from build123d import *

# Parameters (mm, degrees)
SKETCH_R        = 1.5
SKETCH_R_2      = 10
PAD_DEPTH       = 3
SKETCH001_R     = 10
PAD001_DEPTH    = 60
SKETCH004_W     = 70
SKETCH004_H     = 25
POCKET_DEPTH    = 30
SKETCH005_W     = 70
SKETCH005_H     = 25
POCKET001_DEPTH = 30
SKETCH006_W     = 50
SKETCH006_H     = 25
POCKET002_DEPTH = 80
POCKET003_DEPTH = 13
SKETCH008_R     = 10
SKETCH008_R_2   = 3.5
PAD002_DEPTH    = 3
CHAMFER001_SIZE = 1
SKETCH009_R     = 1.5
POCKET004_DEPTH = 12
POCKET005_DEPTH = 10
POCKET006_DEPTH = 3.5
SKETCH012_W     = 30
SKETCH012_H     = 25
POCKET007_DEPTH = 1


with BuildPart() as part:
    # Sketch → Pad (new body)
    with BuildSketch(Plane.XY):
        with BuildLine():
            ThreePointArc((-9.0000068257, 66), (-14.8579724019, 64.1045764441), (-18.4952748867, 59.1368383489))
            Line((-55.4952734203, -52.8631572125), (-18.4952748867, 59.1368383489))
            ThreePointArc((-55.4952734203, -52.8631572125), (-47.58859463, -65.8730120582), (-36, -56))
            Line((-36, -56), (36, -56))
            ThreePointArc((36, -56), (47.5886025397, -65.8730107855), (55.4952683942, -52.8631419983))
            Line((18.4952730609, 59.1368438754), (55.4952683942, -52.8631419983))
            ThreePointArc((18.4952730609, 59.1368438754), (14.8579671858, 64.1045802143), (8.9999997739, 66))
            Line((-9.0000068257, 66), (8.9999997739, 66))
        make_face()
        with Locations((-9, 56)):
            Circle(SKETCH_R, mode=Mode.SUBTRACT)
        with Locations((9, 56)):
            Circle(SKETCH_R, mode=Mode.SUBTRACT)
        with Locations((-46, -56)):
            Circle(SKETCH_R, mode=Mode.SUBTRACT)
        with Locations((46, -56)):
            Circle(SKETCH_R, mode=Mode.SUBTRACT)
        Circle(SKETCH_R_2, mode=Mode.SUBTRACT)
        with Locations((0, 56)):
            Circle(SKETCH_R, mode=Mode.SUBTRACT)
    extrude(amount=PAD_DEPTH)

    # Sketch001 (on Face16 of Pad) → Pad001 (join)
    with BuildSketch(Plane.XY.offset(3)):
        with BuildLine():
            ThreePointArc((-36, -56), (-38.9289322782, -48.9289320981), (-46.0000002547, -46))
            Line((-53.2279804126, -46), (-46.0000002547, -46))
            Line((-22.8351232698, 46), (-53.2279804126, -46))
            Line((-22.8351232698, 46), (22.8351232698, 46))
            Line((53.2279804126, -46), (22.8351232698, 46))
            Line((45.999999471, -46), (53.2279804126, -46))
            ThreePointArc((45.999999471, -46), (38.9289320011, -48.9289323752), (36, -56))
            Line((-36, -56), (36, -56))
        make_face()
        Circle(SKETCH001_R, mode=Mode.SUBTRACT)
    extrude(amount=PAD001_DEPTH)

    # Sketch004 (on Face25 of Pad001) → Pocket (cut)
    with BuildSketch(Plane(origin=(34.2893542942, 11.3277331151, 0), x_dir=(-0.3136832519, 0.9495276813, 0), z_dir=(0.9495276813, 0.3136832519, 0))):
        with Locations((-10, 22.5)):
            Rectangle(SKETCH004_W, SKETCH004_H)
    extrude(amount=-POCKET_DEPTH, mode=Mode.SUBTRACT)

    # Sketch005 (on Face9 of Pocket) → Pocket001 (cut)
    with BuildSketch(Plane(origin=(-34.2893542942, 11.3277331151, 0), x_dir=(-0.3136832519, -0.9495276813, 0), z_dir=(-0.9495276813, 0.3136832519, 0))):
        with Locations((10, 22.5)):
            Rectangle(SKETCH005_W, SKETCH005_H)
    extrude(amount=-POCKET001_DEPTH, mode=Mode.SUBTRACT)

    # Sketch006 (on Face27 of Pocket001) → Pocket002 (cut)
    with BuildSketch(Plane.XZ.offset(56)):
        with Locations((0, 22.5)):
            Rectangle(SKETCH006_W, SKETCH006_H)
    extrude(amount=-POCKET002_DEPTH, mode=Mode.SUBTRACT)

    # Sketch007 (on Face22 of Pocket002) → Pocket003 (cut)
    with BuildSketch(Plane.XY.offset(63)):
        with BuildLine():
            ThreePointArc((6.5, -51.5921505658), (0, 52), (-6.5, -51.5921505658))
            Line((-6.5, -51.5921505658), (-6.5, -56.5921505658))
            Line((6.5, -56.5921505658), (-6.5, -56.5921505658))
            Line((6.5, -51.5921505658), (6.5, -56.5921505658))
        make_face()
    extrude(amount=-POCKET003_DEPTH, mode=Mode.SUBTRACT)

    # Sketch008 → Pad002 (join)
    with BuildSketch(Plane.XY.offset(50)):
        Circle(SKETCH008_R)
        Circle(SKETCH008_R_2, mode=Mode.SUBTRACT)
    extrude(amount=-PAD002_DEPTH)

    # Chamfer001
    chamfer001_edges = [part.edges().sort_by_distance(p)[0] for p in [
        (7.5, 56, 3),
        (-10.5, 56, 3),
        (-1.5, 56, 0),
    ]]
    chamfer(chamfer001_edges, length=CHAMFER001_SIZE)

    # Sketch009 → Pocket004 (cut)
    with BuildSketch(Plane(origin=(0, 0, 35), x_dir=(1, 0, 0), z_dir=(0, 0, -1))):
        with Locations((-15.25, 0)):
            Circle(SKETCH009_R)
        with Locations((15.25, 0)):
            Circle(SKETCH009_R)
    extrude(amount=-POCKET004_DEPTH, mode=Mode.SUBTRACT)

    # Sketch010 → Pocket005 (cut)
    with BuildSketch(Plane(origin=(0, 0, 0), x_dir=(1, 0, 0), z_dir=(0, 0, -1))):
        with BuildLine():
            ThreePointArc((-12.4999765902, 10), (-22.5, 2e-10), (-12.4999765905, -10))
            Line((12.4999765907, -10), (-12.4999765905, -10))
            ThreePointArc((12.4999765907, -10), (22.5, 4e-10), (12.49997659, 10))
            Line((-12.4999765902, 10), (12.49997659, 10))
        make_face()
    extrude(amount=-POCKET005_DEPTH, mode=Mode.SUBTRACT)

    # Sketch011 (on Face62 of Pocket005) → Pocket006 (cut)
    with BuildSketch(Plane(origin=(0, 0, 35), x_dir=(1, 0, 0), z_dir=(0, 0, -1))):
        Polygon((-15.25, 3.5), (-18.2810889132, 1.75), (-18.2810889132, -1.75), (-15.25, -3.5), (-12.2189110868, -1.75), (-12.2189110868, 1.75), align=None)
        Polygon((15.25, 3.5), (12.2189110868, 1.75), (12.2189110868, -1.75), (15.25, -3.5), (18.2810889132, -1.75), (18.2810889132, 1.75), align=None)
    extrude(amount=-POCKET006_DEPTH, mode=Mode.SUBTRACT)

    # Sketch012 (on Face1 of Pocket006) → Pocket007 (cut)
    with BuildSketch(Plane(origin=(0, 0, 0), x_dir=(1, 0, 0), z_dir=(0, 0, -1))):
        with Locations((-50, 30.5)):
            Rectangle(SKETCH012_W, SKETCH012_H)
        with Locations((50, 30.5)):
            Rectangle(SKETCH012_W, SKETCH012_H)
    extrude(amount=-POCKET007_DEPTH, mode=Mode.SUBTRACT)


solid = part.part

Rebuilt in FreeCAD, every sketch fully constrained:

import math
import FreeCAD as App
import Part
import Sketcher
Q = App.Units.Quantity


def edges_at(feature, points):
    """Names of the edges that pass closest to the given points."""
    edges = feature.Shape.Edges
    near = lambda p: min(range(len(edges)), key=lambda i: edges[i].distToShape(Part.Vertex(*p))[0])
    return sorted({f"Edge{near(p) + 1}" for p in points})


def add_polygon(sketch, points):
    """Adds a closed chain of lines whose ends are joined by coincident constraints."""
    first, n = sketch.GeometryCount, len(points)
    for a, b in zip(points, points[1:] + points[:1]):
        sketch.addGeometry(Part.LineSegment(App.Vector(*a, 0), App.Vector(*b, 0)), False)
    for i in range(n):
        sketch.addConstraint(Sketcher.Constraint("Coincident", first + i, 2, first + (i + 1) % n, 1))

doc = App.newDocument("Part")
params = doc.addObject("Spreadsheet::Sheet", "Params")
for row, (alias, value) in enumerate([
    ("sketch1_diameter", "3 mm"),
    ("sketch1_diameter2", "20 mm"),
    ("sketch1_width", "72 mm"),
    ("pad1_length", "3 mm"),
    ("sketch2_diameter", "20 mm"),
    ("sketch2_width", "72 mm"),
    ("pad2_length", "60 mm"),
    ("sketch3_width", "70 mm"),
    ("sketch3_height", "25 mm"),
    ("pocket1_length", "30 mm"),
    ("sketch4_width", "70 mm"),
    ("sketch4_height", "25 mm"),
    ("pocket2_length", "30 mm"),
    ("sketch5_width", "50 mm"),
    ("sketch5_height", "25 mm"),
    ("pocket3_length", "80 mm"),
    ("sketch6_radius", "52 mm"),
    ("sketch6_width", "13 mm"),
    ("sketch6_height", "5 mm"),
    ("pocket4_length", "13 mm"),
    ("sketch7_diameter", "20 mm"),
    ("sketch7_diameter2", "7 mm"),
    ("pad3_length", "3 mm"),
    ("chamfer_size", "1 mm"),
    ("sketch8_diameter", "3 mm"),
    ("pocket5_length", "12 mm"),
    ("sketch9_radius", "10 mm"),
    ("pocket6_length", "10 mm"),
    ("sketch10_height", "3.5 mm"),
    ("pocket7_length", "3.5 mm"),
    ("sketch11_width", "30 mm"),
    ("sketch11_height", "25 mm"),
    ("pocket8_length", "1 mm"),
], start=1):
    params.set(f"A{row}", alias)
    params.set(f"B{row}", "=" + value)
    params.setAlias(f"B{row}", alias)

body = doc.addObject("PartDesign::Body", "Body")

# Sketch on XY plane
sketch1 = doc.addObject("Sketcher::SketchObject", "Sketch")
body.addObject(sketch1)
sketch1.AttachmentSupport = (doc.XY_Plane, [""])
sketch1.MapMode = "FlatFace"
sketch1.addGeometry([
    Part.ArcOfCircle(Part.Circle(App.Vector(-9, 56, 0), App.Vector(0, 0, 1), 10), math.radians(90), math.radians(162)),  # 0
    Part.LineSegment(App.Vector(-18.5, 59.1, 0), App.Vector(-55.5, -52.9, 0)),  # 1
    Part.ArcOfCircle(Part.Circle(App.Vector(-46, -56, 0), App.Vector(0, 0, 1), 10), math.radians(162), math.radians(360)),  # 2
    Part.LineSegment(App.Vector(-36, -56, 0), App.Vector(36, -56, 0)),  # 3
    Part.ArcOfCircle(Part.Circle(App.Vector(46, -56, 0), App.Vector(0, 0, 1), 10), math.radians(180), math.radians(378)),  # 4
    Part.LineSegment(App.Vector(55.5, -52.9, 0), App.Vector(18.5, 59.1, 0)),  # 5
    Part.ArcOfCircle(Part.Circle(App.Vector(9, 56, 0), App.Vector(0, 0, 1), 10), math.radians(18), math.radians(90)),  # 6
    Part.LineSegment(App.Vector(9, 66, 0), App.Vector(-9, 66, 0)),  # 7
    Part.Circle(App.Vector(-46, -56, 0), App.Vector(0, 0, 1), 1.5),  # 8
    Part.Circle(App.Vector(46, -56, 0), App.Vector(0, 0, 1), 1.5),  # 9
    Part.Circle(App.Vector(-9, 56, 0), App.Vector(0, 0, 1), 1.5),  # 10
    Part.Circle(App.Vector(0, 0, 0), App.Vector(0, 0, 1), 10),  # 11
    Part.Circle(App.Vector(0, 56, 0), App.Vector(0, 0, 1), 1.5),  # 12
    Part.Circle(App.Vector(9, 56, 0), App.Vector(0, 0, 1), 1.5),  # 13
], False)
sketch1.addConstraint([
    Sketcher.Constraint("Tangent", 0, 2, 1, 1),
    Sketcher.Constraint("Tangent", 1, 2, 2, 1),
    Sketcher.Constraint("Coincident", 2, 2, 3, 1),
    Sketcher.Constraint("Coincident", 3, 2, 4, 1),
    Sketcher.Constraint("Coincident", 4, 2, 5, 1),
    Sketcher.Constraint("Tangent", 5, 2, 6, 1),
    Sketcher.Constraint("Tangent", 6, 2, 7, 1),
    Sketcher.Constraint("Tangent", 7, 2, 0, 1),
    Sketcher.Constraint("Horizontal", 3),
    Sketcher.Constraint("Horizontal", 7),
    Sketcher.Constraint("Coincident", 11, 3, -1, 1),
    Sketcher.Constraint("Coincident", 8, 3, 2, 3),
    Sketcher.Constraint("Coincident", 9, 3, 4, 3),
    Sketcher.Constraint("Coincident", 10, 3, 0, 3),
    Sketcher.Constraint("Coincident", 13, 3, 6, 3),
    Sketcher.Constraint("Equal", 0, 2),
    Sketcher.Constraint("Equal", 2, 4),
    Sketcher.Constraint("Equal", 4, 6),
    Sketcher.Constraint("Equal", 8, 9),
    Sketcher.Constraint("Equal", 9, 10),
    Sketcher.Constraint("Equal", 6, 11),
    Sketcher.Constraint("Equal", 10, 12),
    Sketcher.Constraint("Equal", 12, 13),
    Sketcher.Constraint("Symmetric", 2, 3, 4, 3, -2),
    Sketcher.Constraint("PointOnObject", 12, 3, -2),
    Sketcher.Constraint("Horizontal", 10, 3, 12, 3),
    Sketcher.Constraint("Horizontal", 9, 3, 2, 2),
    Sketcher.Constraint("Diameter", 8, 3.0),
    Sketcher.Constraint("Diameter", 11, 20.0),
    Sketcher.Constraint("DistanceX", 3, 1, 3, 2, 72.0),
    Sketcher.Constraint("DistanceX", 0, 3, -1, 1, 9.0),
    Sketcher.Constraint("DistanceY", -1, 1, 0, 3, 56.0),
    Sketcher.Constraint("DistanceY", 2, 3, -1, 1, 56.0),
    Sketcher.Constraint("DistanceX", -1, 1, 6, 3, 9.0),
    Sketcher.Constraint("DistanceX", -1, 1, 4, 2, 55.495268),
])
sketch1.setExpression("Constraints[27]", "Params.sketch1_diameter")
sketch1.setExpression("Constraints[28]", "Params.sketch1_diameter2")
sketch1.setExpression("Constraints[29]", "Params.sketch1_width")
pad1 = doc.addObject("PartDesign::Pad", "Pad")
body.addObject(pad1)
pad1.Profile = sketch1
pad1.setExpression("Length", "Params.pad1_length")

# Sketch on XY plane
sketch2 = doc.addObject("Sketcher::SketchObject", "Sketch001")
body.addObject(sketch2)
sketch2.AttachmentSupport = (doc.XY_Plane, [""])
sketch2.MapMode = "FlatFace"
sketch2.AttachmentOffset = App.Placement(App.Vector(0, 0, 3), App.Rotation())
sketch2.addGeometry([
    Part.ArcOfCircle(Part.Circle(App.Vector(-46, -56, 0), App.Vector(0, 0, 1), 10), math.radians(0), math.radians(90)),  # 0
    Part.LineSegment(App.Vector(-36, -56, 0), App.Vector(36, -56, 0)),  # 1
    Part.ArcOfCircle(Part.Circle(App.Vector(46, -56, 0), App.Vector(0, 0, 1), 10), math.radians(90), math.radians(180)),  # 2
    Part.LineSegment(App.Vector(46, -46, 0), App.Vector(53, -46, 0)),  # 3
    Part.LineSegment(App.Vector(53, -46, 0), App.Vector(23, 46, 0)),  # 4
    Part.LineSegment(App.Vector(23, 46, 0), App.Vector(-23, 46, 0)),  # 5
    Part.LineSegment(App.Vector(-23, 46, 0), App.Vector(-53, -46, 0)),  # 6
    Part.LineSegment(App.Vector(-53, -46, 0), App.Vector(-46, -46, 0)),  # 7
    Part.Circle(App.Vector(0, 0, 0), App.Vector(0, 0, 1), 10),  # 8
], False)
sketch2.addConstraint([
    Sketcher.Constraint("Coincident", 0, 1, 1, 1),
    Sketcher.Constraint("Coincident", 1, 2, 2, 2),
    Sketcher.Constraint("Tangent", 2, 1, 3, 1),
    Sketcher.Constraint("Coincident", 3, 2, 4, 1),
    Sketcher.Constraint("Coincident", 4, 2, 5, 1),
    Sketcher.Constraint("Coincident", 5, 2, 6, 1),
    Sketcher.Constraint("Coincident", 6, 2, 7, 1),
    Sketcher.Constraint("Tangent", 7, 2, 0, 2),
    Sketcher.Constraint("Horizontal", 1),
    Sketcher.Constraint("Horizontal", 3),
    Sketcher.Constraint("Horizontal", 5),
    Sketcher.Constraint("Horizontal", 7),
    Sketcher.Constraint("Coincident", 8, 3, -1, 1),
    Sketcher.Constraint("Equal", 0, 2),
    Sketcher.Constraint("Equal", 2, 8),
    Sketcher.Constraint("Symmetric", 0, 3, 2, 3, -2),
    Sketcher.Constraint("Horizontal", 2, 3, 0, 1),
    Sketcher.Constraint("Equal", 3, 7),
    Sketcher.Constraint("Equal", 4, 6),
    Sketcher.Constraint("Diameter", 8, 20.0),
    Sketcher.Constraint("DistanceX", 1, 1, 1, 2, 72.0),
    Sketcher.Constraint("DistanceY", 0, 3, -1, 1, 56.0),
    Sketcher.Constraint("DistanceY", -1, 1, 4, 2, 46.0),
    Sketcher.Constraint("DistanceX", 3, 1, 3, 2, 7.227981),
    Sketcher.Constraint("DistanceX", 5, 2, 5, 1, 45.670247),
])
sketch2.setExpression("Constraints[19]", "Params.sketch2_diameter")
sketch2.setExpression("Constraints[20]", "Params.sketch2_width")
pad2 = doc.addObject("PartDesign::Pad", "Pad001")
body.addObject(pad2)
pad2.Profile = sketch2
pad2.setExpression("Length", "Params.pad2_length")

# Sketch on an angled plane
sketch3 = doc.addObject("Sketcher::SketchObject", "Sketch002")
body.addObject(sketch3)
sketch3.Placement = App.Placement(App.Vector(34.289354, 11.327733, 0), App.Rotation(App.Vector(-0.313683252, 0.949527681, 0), App.Vector(0, 0, 1), App.Vector(0.949527681, 0.313683252, 0), "ZXY"))
add_polygon(sketch3, [(-45, 35), (-45, 10), (25, 10), (25, 35)])  # lines 0-3
sketch3.addConstraint([
    Sketcher.Constraint("Vertical", 0),
    Sketcher.Constraint("Horizontal", 1),
    Sketcher.Constraint("Vertical", 2),
    Sketcher.Constraint("Horizontal", 3),
    Sketcher.Constraint("DistanceX", 1, 1, 1, 2, 70.0),
    Sketcher.Constraint("DistanceY", 0, 2, 0, 1, 25.0),
    Sketcher.Constraint("DistanceX", 0, 2, -1, 1, 45.0),
    Sketcher.Constraint("DistanceY", -1, 1, 0, 2, 10.0),
])
sketch3.setExpression("Constraints[8]", "Params.sketch3_width")
sketch3.setExpression("Constraints[9]", "Params.sketch3_height")
pocket1 = doc.addObject("PartDesign::Pocket", "Pocket")
body.addObject(pocket1)
pocket1.Profile = sketch3
pocket1.setExpression("Length", "Params.pocket1_length")

# Sketch on an angled plane
sketch4 = doc.addObject("Sketcher::SketchObject", "Sketch003")
body.addObject(sketch4)
sketch4.Placement = App.Placement(App.Vector(-34.289354, 11.327733, 0), App.Rotation(App.Vector(-0.313683252, -0.949527681, 0), App.Vector(0, 0, 1), App.Vector(-0.949527681, 0.313683252, 0), "ZXY"))
add_polygon(sketch4, [(-25, 35), (-25, 10), (45, 10), (45, 35)])  # lines 0-3
sketch4.addConstraint([
    Sketcher.Constraint("Vertical", 0),
    Sketcher.Constraint("Horizontal", 1),
    Sketcher.Constraint("Vertical", 2),
    Sketcher.Constraint("Horizontal", 3),
    Sketcher.Constraint("DistanceX", 1, 1, 1, 2, 70.0),
    Sketcher.Constraint("DistanceY", 0, 2, 0, 1, 25.0),
    Sketcher.Constraint("DistanceX", 0, 2, -1, 1, 25.0),
    Sketcher.Constraint("DistanceY", -1, 1, 0, 2, 10.0),
])
sketch4.setExpression("Constraints[8]", "Params.sketch4_width")
sketch4.setExpression("Constraints[9]", "Params.sketch4_height")
pocket2 = doc.addObject("PartDesign::Pocket", "Pocket001")
body.addObject(pocket2)
pocket2.Profile = sketch4
pocket2.setExpression("Length", "Params.pocket2_length")

# Sketch on XZ plane
sketch5 = doc.addObject("Sketcher::SketchObject", "Sketch004")
body.addObject(sketch5)
sketch5.AttachmentSupport = (doc.XZ_Plane, [""])
sketch5.MapMode = "FlatFace"
sketch5.AttachmentOffset = App.Placement(App.Vector(0, 0, 56), App.Rotation())
add_polygon(sketch5, [(-25, 35), (-25, 10), (25, 10), (25, 35)])  # lines 0-3
sketch5.addConstraint([
    Sketcher.Constraint("Vertical", 0),
    Sketcher.Constraint("Horizontal", 1),
    Sketcher.Constraint("Vertical", 2),
    Sketcher.Constraint("Horizontal", 3),
    Sketcher.Constraint("DistanceX", 1, 1, 1, 2, 50.0),
    Sketcher.Constraint("DistanceY", 0, 2, 0, 1, 25.0),
    Sketcher.Constraint("DistanceX", 0, 2, -1, 1, 25.0),
    Sketcher.Constraint("DistanceY", -1, 1, 0, 2, 10.0),
])
sketch5.setExpression("Constraints[8]", "Params.sketch5_width")
sketch5.setExpression("Constraints[9]", "Params.sketch5_height")
pocket3 = doc.addObject("PartDesign::Pocket", "Pocket002")
body.addObject(pocket3)
pocket3.Profile = sketch5
pocket3.setExpression("Length", "Params.pocket3_length")

# Sketch on XY plane
sketch6 = doc.addObject("Sketcher::SketchObject", "Sketch005")
body.addObject(sketch6)
sketch6.AttachmentSupport = (doc.XY_Plane, [""])
sketch6.MapMode = "FlatFace"
sketch6.AttachmentOffset = App.Placement(App.Vector(0, 0, 63), App.Rotation())
sketch6.addGeometry([
    Part.ArcOfCircle(Part.Circle(App.Vector(0, 0, 0), App.Vector(0, 0, 1), 52), math.radians(-83), math.radians(263)),
    Part.LineSegment(App.Vector(-6, -52, 0), App.Vector(-6, -57, 0)),
    Part.LineSegment(App.Vector(-6, -57, 0), App.Vector(6, -57, 0)),
    Part.LineSegment(App.Vector(6, -57, 0), App.Vector(6, -52, 0)),
], False)
sketch6.addConstraint([
    Sketcher.Constraint("Coincident", 0, 2, 1, 1),
    Sketcher.Constraint("Coincident", 1, 2, 2, 1),
    Sketcher.Constraint("Coincident", 2, 2, 3, 1),
    Sketcher.Constraint("Coincident", 3, 2, 0, 1),
    Sketcher.Constraint("Vertical", 1),
    Sketcher.Constraint("Horizontal", 2),
    Sketcher.Constraint("Vertical", 3),
    Sketcher.Constraint("Coincident", 0, 3, -1, 1),
    Sketcher.Constraint("Horizontal", 0, 2, 3, 2),
    Sketcher.Constraint("Radius", 0, 52.0),
    Sketcher.Constraint("DistanceX", 2, 1, 2, 2, 13.0),
    Sketcher.Constraint("DistanceY", 1, 2, 1, 1, 5.0),
])
sketch6.setExpression("Constraints[9]", "Params.sketch6_radius")
sketch6.setExpression("Constraints[10]", "Params.sketch6_width")
sketch6.setExpression("Constraints[11]", "Params.sketch6_height")
pocket4 = doc.addObject("PartDesign::Pocket", "Pocket003")
body.addObject(pocket4)
pocket4.Profile = sketch6
pocket4.setExpression("Length", "Params.pocket4_length")

# Sketch on XY plane
sketch7 = doc.addObject("Sketcher::SketchObject", "Sketch006")
body.addObject(sketch7)
sketch7.AttachmentSupport = (doc.XY_Plane, [""])
sketch7.MapMode = "FlatFace"
sketch7.AttachmentOffset = App.Placement(App.Vector(0, 0, 50), App.Rotation())
sketch7.addGeometry([
    Part.Circle(App.Vector(0, 0, 0), App.Vector(0, 0, 1), 10),
    Part.Circle(App.Vector(0, 0, 0), App.Vector(0, 0, 1), 3.5),
], False)
sketch7.addConstraint([
    Sketcher.Constraint("Coincident", 0, 3, -1, 1),
    Sketcher.Constraint("Coincident", 1, 3, -1, 1),
    Sketcher.Constraint("Diameter", 0, 20.0),
    Sketcher.Constraint("Diameter", 1, 7.0),
])
sketch7.setExpression("Constraints[2]", "Params.sketch7_diameter")
sketch7.setExpression("Constraints[3]", "Params.sketch7_diameter2")
pad3 = doc.addObject("PartDesign::Pad", "Pad002")
body.addObject(pad3)
pad3.Profile = sketch7
pad3.setExpression("Length", "Params.pad3_length")
pad3.Reversed = True
doc.recompute()

chamfer = doc.addObject("PartDesign::Chamfer", "Chamfer")
body.addObject(chamfer)
chamfer.Base = (pad3, edges_at(pad3, [(7.5, 56, 3), (-10.5, 56, 3), (-1.5, 56, 0)]))
chamfer.setExpression("Size", "Params.chamfer_size")

# Sketch on XY plane
sketch8 = doc.addObject("Sketcher::SketchObject", "Sketch007")
body.addObject(sketch8)
sketch8.AttachmentSupport = (doc.XY_Plane, [""])
sketch8.MapMode = "FlatFace"
sketch8.AttachmentOffset = App.Placement(App.Vector(0, 0, 35), App.Rotation())
sketch8.addGeometry([
    Part.Circle(App.Vector(-15.2, 0, 0), App.Vector(0, 0, 1), 1.5),
    Part.Circle(App.Vector(15.2, 0, 0), App.Vector(0, 0, 1), 1.5),
], False)
sketch8.addConstraint([
    Sketcher.Constraint("Equal", 0, 1),
    Sketcher.Constraint("Symmetric", 0, 3, 1, 3, -1, 1),
    Sketcher.Constraint("PointOnObject", 0, 3, -1),
    Sketcher.Constraint("Diameter", 0, 3.0),
    Sketcher.Constraint("DistanceX", 0, 3, 1, 3, 30.5),
])
sketch8.setExpression("Constraints[3]", "Params.sketch8_diameter")
pocket5 = doc.addObject("PartDesign::Pocket", "Pocket004")
body.addObject(pocket5)
pocket5.Profile = sketch8
pocket5.setExpression("Length", "Params.pocket5_length")
pocket5.Reversed = True

# Sketch on XY plane
sketch9 = doc.addObject("Sketcher::SketchObject", "Sketch008")
body.addObject(sketch9)
sketch9.AttachmentSupport = (doc.XY_Plane, [""])
sketch9.MapMode = "FlatFace"
sketch9.addGeometry([
    Part.ArcOfCircle(Part.Circle(App.Vector(-12, 0, 0), App.Vector(0, 0, 1), 10), math.radians(90), math.radians(270)),
    Part.LineSegment(App.Vector(-12, 10, 0), App.Vector(12, 10, 0)),
    Part.ArcOfCircle(Part.Circle(App.Vector(12, 0, 0), App.Vector(0, 0, 1), 10), math.radians(-90), math.radians(90)),
    Part.LineSegment(App.Vector(12, -10, 0), App.Vector(-12, -10, 0)),
], False)
sketch9.addConstraint([
    Sketcher.Constraint("Coincident", 0, 1, 1, 1),
    Sketcher.Constraint("Coincident", 1, 2, 2, 2),
    Sketcher.Constraint("Coincident", 2, 1, 3, 1),
    Sketcher.Constraint("Coincident", 3, 2, 0, 2),
    Sketcher.Constraint("Horizontal", 1),
    Sketcher.Constraint("Horizontal", 3),
    Sketcher.Constraint("Symmetric", 0, 3, 2, 3, -1, 1),
    Sketcher.Constraint("Vertical", 1, 2, 2, 1),
    Sketcher.Constraint("Vertical", 0, 1, 3, 2),
    Sketcher.Constraint("Radius", 0, 10.0),
    Sketcher.Constraint("DistanceX", 0, 3, 2, 3, 25.0),
    Sketcher.Constraint("DistanceX", 1, 1, 1, 2, 24.999953),
    Sketcher.Constraint("DistanceX", 0, 1, -1, 1, 12.499977),
])
sketch9.setExpression("Constraints[9]", "Params.sketch9_radius")
pocket6 = doc.addObject("PartDesign::Pocket", "Pocket005")
body.addObject(pocket6)
pocket6.Profile = sketch9
pocket6.setExpression("Length", "Params.pocket6_length")
pocket6.Reversed = True

# Sketch on XY plane
sketch10 = doc.addObject("Sketcher::SketchObject", "Sketch009")
body.addObject(sketch10)
sketch10.AttachmentSupport = (doc.XY_Plane, [""])
sketch10.MapMode = "FlatFace"
sketch10.AttachmentOffset = App.Placement(App.Vector(0, 0, 35), App.Rotation())
add_polygon(sketch10, [(-15.2, -3.5), (-18.3, -1.8), (-18.3, 1.8), (-15.2, 3.5), (-12.2, 1.8), (-12.2, -1.8)])  # lines 0-5
add_polygon(sketch10, [(15.2, -3.5), (12.2, -1.8), (12.2, 1.8), (15.2, 3.5), (18.3, 1.8), (18.3, -1.8)])  # lines 6-11
sketch10.addConstraint([
    Sketcher.Constraint("Vertical", 1),
    Sketcher.Constraint("Vertical", 4),
    Sketcher.Constraint("Vertical", 7),
    Sketcher.Constraint("Vertical", 10),
    Sketcher.Constraint("Symmetric", 3, 2, 6, 2, -1, 1),
    Sketcher.Constraint("Symmetric", 5, 2, 8, 2, -1, 1),
    Sketcher.Constraint("Symmetric", 0, 2, 9, 2, -1, 1),
    Sketcher.Constraint("Symmetric", 2, 2, 11, 2, -1, 1),
    Sketcher.Constraint("Symmetric", 2, 2, 8, 2, -2),
    Sketcher.Constraint("Parallel", 0, 3),
    Sketcher.Constraint("Parallel", 2, 5),
    Sketcher.Constraint("Parallel", 5, 8),
    Sketcher.Constraint("Parallel", 8, 11),
    Sketcher.Constraint("Horizontal", 1, 2, 3, 2),
    Sketcher.Constraint("Horizontal", 0, 2, 4, 2),
    Sketcher.Constraint("Angle", 0, Q("150 deg")),
    Sketcher.Constraint("DistanceY", 1, 1, 1, 2, 3.5),
    Sketcher.Constraint("DistanceY", 5, 2, 2, 2, 7.0),
    Sketcher.Constraint("DistanceX", 0, 2, 6, 2, 30.5),
])
sketch10.setExpression("Constraints[28]", "Params.sketch10_height")
pocket7 = doc.addObject("PartDesign::Pocket", "Pocket006")
body.addObject(pocket7)
pocket7.Profile = sketch10
pocket7.setExpression("Length", "Params.pocket7_length")
pocket7.Reversed = True

# Sketch on XY plane
sketch11 = doc.addObject("Sketcher::SketchObject", "Sketch010")
body.addObject(sketch11)
sketch11.AttachmentSupport = (doc.XY_Plane, [""])
sketch11.MapMode = "FlatFace"
add_polygon(sketch11, [(-65, -43), (-65, -18), (-35, -18), (-35, -43)])  # lines 0-3
add_polygon(sketch11, [(35, -43), (35, -18), (65, -18), (65, -43)])  # lines 4-7
sketch11.addConstraint([
    Sketcher.Constraint("Vertical", 0),
    Sketcher.Constraint("Horizontal", 1),
    Sketcher.Constraint("Vertical", 2),
    Sketcher.Constraint("Horizontal", 3),
    Sketcher.Constraint("Vertical", 4),
    Sketcher.Constraint("Horizontal", 5),
    Sketcher.Constraint("Vertical", 6),
    Sketcher.Constraint("Horizontal", 7),
    Sketcher.Constraint("Symmetric", 1, 2, 4, 2, -2),
    Sketcher.Constraint("Symmetric", 3, 2, 6, 2, -2),
    Sketcher.Constraint("DistanceX", 1, 1, 1, 2, 30.0),
    Sketcher.Constraint("DistanceY", 0, 1, 0, 2, 25.0),
    Sketcher.Constraint("DistanceX", 0, 2, -1, 1, 65.0),
    Sketcher.Constraint("DistanceY", 0, 2, -1, 1, 18.0),
])
sketch11.setExpression("Constraints[18]", "Params.sketch11_width")
sketch11.setExpression("Constraints[19]", "Params.sketch11_height")
pocket8 = doc.addObject("PartDesign::Pocket", "Pocket007")
body.addObject(pocket8)
pocket8.Profile = sketch11
pocket8.setExpression("Length", "Params.pocket8_length")
pocket8.Reversed = True

doc.recompute()
